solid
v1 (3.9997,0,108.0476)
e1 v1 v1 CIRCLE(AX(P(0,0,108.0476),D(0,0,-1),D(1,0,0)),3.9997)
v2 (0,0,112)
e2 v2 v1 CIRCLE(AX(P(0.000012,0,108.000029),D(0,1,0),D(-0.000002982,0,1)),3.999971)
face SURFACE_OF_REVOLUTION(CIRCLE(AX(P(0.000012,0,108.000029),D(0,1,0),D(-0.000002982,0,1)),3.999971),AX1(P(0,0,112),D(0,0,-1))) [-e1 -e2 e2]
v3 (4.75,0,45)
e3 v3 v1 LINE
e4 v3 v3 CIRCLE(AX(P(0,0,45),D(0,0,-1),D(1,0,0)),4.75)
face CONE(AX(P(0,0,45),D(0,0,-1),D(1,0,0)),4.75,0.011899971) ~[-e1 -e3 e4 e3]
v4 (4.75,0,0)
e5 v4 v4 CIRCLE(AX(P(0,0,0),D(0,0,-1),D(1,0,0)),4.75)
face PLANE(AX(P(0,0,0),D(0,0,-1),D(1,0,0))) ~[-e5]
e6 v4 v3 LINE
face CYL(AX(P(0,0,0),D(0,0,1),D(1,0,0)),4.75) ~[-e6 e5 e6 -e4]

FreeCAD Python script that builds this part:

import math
import FreeCAD as App
import Part
import Sketcher
from FreeCAD import Vector
Q = App.Units.Quantity

doc = App.newDocument("Part")
params = doc.addObject("Spreadsheet::Sheet", "Params")
for row, (alias, value) in enumerate([
    ("sketch1_radius", "4 mm"),
    ("sketch1_height", "112 mm"),
    ("sketch1_height2", "45 mm"),
    ("sketch1_width", "4.75 mm"),
    ("revolution_angle", "360 deg"),
], start=1):
    params.set(f"A{row}", alias)
    params.set(f"B{row}", "=" + value)
    params.setAlias(f"B{row}", alias)

body = doc.addObject("PartDesign::Body", "Body")

# Sketch on XZ plane
sketch1 = body.newObject("Sketcher::SketchObject", "Sketch")
sketch1.AttachmentSupport = (doc.getObject("XZ_Plane"), [""])
sketch1.MapMode = "FlatFace"
sketch1.addGeometry([
    Part.LineSegment(Vector(4.8, 0, 0), Vector(0, 0, 0)),  # 0
    Part.LineSegment(Vector(0, 0, 0), Vector(0, 112, 0)),  # 1
    Part.ArcOfCircle(Part.Circle(Vector(0, 108, 0), Vector(0, 0, 1), 4), math.radians(1), math.radians(90)),  # 2
    Part.LineSegment(Vector(4, 108, 0), Vector(4.8, 45, 0)),  # 3
    Part.LineSegment(Vector(4.8, 45, 0), Vector(4.8, 0, 0)),  # 4
], False)
sketch1.addConstraint([
    Sketcher.Constraint("Coincident", 0, 2, 1, 1),
    Sketcher.Constraint("Coincident", 1, 2, 2, 2),
    Sketcher.Constraint("Tangent", 2, 1, 3, 1),
    Sketcher.Constraint("Coincident", 3, 2, 4, 1),
    Sketcher.Constraint("Coincident", 4, 2, 0, 1),
    Sketcher.Constraint("Horizontal", 0),
    Sketcher.Constraint("Vertical", 1),
    Sketcher.Constraint("Vertical", 4),
    Sketcher.Constraint("Coincident", 0, 2, -1, 1),
    Sketcher.Constraint("PointOnObject", 2, 3, -2),
    Sketcher.Constraint("Radius", 2, Q("4 mm")),
    Sketcher.Constraint("DistanceY", 1, 1, 1, 2, Q("112 mm")),
    Sketcher.Constraint("DistanceY", 4, 2, 4, 1, Q("45 mm")),
    Sketcher.Constraint("DistanceX", 0, 2, 0, 1, Q("4.75 mm")),
])
sketch1.setExpression("Constraints[10]", "Params.sketch1_radius")
sketch1.setExpression("Constraints[11]", "Params.sketch1_height")
sketch1.setExpression("Constraints[12]", "Params.sketch1_height2")
sketch1.setExpression("Constraints[13]", "Params.sketch1_width")
revolution = body.newObject("PartDesign::Revolution", "Revolution")
revolution.Profile = sketch1
revolution.ReferenceAxis = (sketch1, ["V_Axis"])
revolution.setExpression("Angle", "Params.revolution_angle")

doc.recompute()
